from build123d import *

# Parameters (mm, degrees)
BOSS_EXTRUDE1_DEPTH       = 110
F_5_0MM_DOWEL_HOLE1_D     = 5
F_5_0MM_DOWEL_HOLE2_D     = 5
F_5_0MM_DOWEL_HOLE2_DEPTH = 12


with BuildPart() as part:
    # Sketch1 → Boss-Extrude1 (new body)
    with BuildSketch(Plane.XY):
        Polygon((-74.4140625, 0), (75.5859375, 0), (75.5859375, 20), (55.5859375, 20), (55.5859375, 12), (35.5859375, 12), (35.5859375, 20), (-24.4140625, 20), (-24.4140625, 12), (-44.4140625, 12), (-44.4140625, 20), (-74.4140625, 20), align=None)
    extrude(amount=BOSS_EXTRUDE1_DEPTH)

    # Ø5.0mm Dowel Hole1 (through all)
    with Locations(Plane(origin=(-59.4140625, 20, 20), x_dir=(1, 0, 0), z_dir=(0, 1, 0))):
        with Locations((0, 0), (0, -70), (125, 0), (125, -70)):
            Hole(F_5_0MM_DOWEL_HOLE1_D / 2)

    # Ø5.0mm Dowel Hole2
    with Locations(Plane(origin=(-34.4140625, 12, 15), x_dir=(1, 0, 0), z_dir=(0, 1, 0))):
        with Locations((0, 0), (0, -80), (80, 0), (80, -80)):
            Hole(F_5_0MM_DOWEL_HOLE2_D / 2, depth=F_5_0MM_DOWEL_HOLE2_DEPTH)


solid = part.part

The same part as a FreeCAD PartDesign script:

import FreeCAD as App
import Part
import Sketcher

V = App.Vector

doc = App.newDocument("Part")
params = doc.addObject("Spreadsheet::Sheet", "Params")
for row, (alias, value) in enumerate([
    ("sketch1_width", "150 mm"),
    ("sketch1_width2", "20 mm"),
    ("sketch1_width3", "60 mm"),
    ("sketch1_height", "8 mm"),
    ("pad1_length", "110 mm"),
    ("sketch2_diameter", "5 mm"),
    ("hole_diameter", "5 mm"),
    ("sketch3_diameter", "5 mm"),
    ("hole2_diameter", "5 mm"),
    ("hole2_depth", "12 mm"),
], start=1):
    params.set(f"A{row}", alias)
    params.set(f"B{row}", "=" + value)
    params.setAlias(f"B{row}", alias)

body = doc.addObject("PartDesign::Body", "Body")

# Sketch on XY plane
sketch1 = body.newObject("Sketcher::SketchObject", "Sketch")
sketch1.AttachmentSupport = (doc.getObject("XY_Plane"), [""])
sketch1.MapMode = "FlatFace"
sketch1.addGeometry([
    Part.LineSegment(V(-74, 0, 0), V(76, 0, 0)),  # 0
    Part.LineSegment(V(76, 0, 0), V(76, 20, 0)),  # 1
    Part.LineSegment(V(76, 20, 0), V(56, 20, 0)),  # 2
    Part.LineSegment(V(56, 20, 0), V(56, 12, 0)),  # 3
    Part.LineSegment(V(56, 12, 0), V(36, 12, 0)),  # 4
    Part.LineSegment(V(36, 12, 0), V(36, 20, 0)),  # 5
    Part.LineSegment(V(36, 20, 0), V(-24, 20, 0)),  # 6
    Part.LineSegment(V(-24, 20, 0), V(-24, 12, 0)),  # 7
    Part.LineSegment(V(-24, 12, 0), V(-44, 12, 0)),  # 8
    Part.LineSegment(V(-44, 12, 0), V(-44, 20, 0)),  # 9
    Part.LineSegment(V(-44, 20, 0), V(-74, 20, 0)),  # 10
    Part.LineSegment(V(-74, 20, 0), V(-74, 0, 0)),  # 11
], False)
sketch1.addConstraint([
    Sketcher.Constraint("Coincident", 0, 2, 1, 1),
    Sketcher.Constraint("Coincident", 1, 2, 2, 1),
    Sketcher.Constraint("Coincident", 2, 2, 3, 1),
    Sketcher.Constraint("Coincident", 3, 2, 4, 1),
    Sketcher.Constraint("Coincident", 4, 2, 5, 1),
    Sketcher.Constraint("Coincident", 5, 2, 6, 1),
    Sketcher.Constraint("Coincident", 6, 2, 7, 1),
    Sketcher.Constraint("Coincident", 7, 2, 8, 1),
    Sketcher.Constraint("Coincident", 8, 2, 9, 1),
    Sketcher.Constraint("Coincident", 9, 2, 10, 1),
    Sketcher.Constraint("Coincident", 10, 2, 11, 1),
    Sketcher.Constraint("Coincident", 11, 2, 0, 1),
    Sketcher.Constraint("Horizontal", 0),
    Sketcher.Constraint("Vertical", 1),
    Sketcher.Constraint("Horizontal", 2),
    Sketcher.Constraint("Vertical", 3),
    Sketcher.Constraint("Horizontal", 4),
    Sketcher.Constraint("Vertical", 5),
    Sketcher.Constraint("Horizontal", 6),
    Sketcher.Constraint("Vertical", 7),
    Sketcher.Constraint("Horizontal", 8),
    Sketcher.Constraint("Vertical", 9),
    Sketcher.Constraint("Horizontal", 10),
    Sketcher.Constraint("Vertical", 11),
    Sketcher.Constraint("PointOnObject", 0, 2, -1),
    Sketcher.Constraint("Horizontal", 2, 2, 5, 2),
    Sketcher.Constraint("Horizontal", 4, 2, 7, 2),
    Sketcher.Constraint("Horizontal", 6, 2, 9, 2),
    Sketcher.Constraint("Equal", 2, 4),
    Sketcher.Constraint("Equal", 4, 8),
    Sketcher.Constraint("Equal", 8, 1),
    Sketcher.Constraint("DistanceX", 0, 1, 0, 2, 150.0),
    Sketcher.Constraint("DistanceX", 2, 2, 2, 1, 20.0),
    Sketcher.Constraint("DistanceX", 6, 2, 6, 1, 60.0),
    Sketcher.Constraint("DistanceY", 3, 2, 3, 1, 8.0),
    Sketcher.Constraint("DistanceX", -1, 1, 0, 2, 75.585938),
])
sketch1.setExpression("Constraints[31]", "Params.sketch1_width")
sketch1.setExpression("Constraints[32]", "Params.sketch1_width2")
sketch1.setExpression("Constraints[33]", "Params.sketch1_width3")
sketch1.setExpression("Constraints[34]", "Params.sketch1_height")
pad1 = body.newObject("PartDesign::Pad", "Pad")
pad1.Profile = sketch1
pad1.setExpression("Length", "Params.pad1_length")

# Sketch on XZ plane
sketch2 = body.newObject("Sketcher::SketchObject", "Sketch001")
sketch2.AttachmentSupport = (doc.getObject("XZ_Plane"), [""])
sketch2.MapMode = "FlatFace"
sketch2.AttachmentOffset = App.Placement(V(0, 0, -20), App.Rotation())
sketch2.addGeometry([
    Part.Circle(V(-59.4, 20, 0), V(0, 0, 1), 2.5),
    Part.Circle(V(-59.4, 90, 0), V(0, 0, 1), 2.5),
    Part.Circle(V(65.6, 20, 0), V(0, 0, 1), 2.5),
    Part.Circle(V(65.6, 90, 0), V(0, 0, 1), 2.5),
], False)
sketch2.addConstraint([
    Sketcher.Constraint("Equal", 0, 1),
    Sketcher.Constraint("Equal", 1, 2),
    Sketcher.Constraint("Equal", 2, 3),
    Sketcher.Constraint("Horizontal", 0, 3, 2, 3),
    Sketcher.Constraint("Horizontal", 1, 3, 3, 3),
    Sketcher.Constraint("Vertical", 0, 3, 1, 3),
    Sketcher.Constraint("Vertical", 2, 3, 3, 3),
    Sketcher.Constraint("Diameter", 0, 5.0),
    Sketcher.Constraint("DistanceY", -1, 1, 0, 3, 20.0),
    Sketcher.Constraint("DistanceY", -1, 1, 1, 3, 90.0),
    Sketcher.Constraint("DistanceX", 0, 3, 2, 3, 125.0),
    Sketcher.Constraint("DistanceX", 0, 3, -1, 1, 59.414062),
])
sketch2.setExpression("Constraints[7]", "Params.sketch2_diameter")
doc.recompute()
hole = body.newObject("PartDesign::Hole", "Hole")
hole.Profile = sketch2
hole.ThreadType = "None"
hole.setExpression("Diameter", "Params.hole_diameter")
hole.DepthType = "ThroughAll"
hole.Reversed = True

# Sketch on XZ plane
sketch3 = body.newObject("Sketcher::SketchObject", "Sketch002")
sketch3.AttachmentSupport = (doc.getObject("XZ_Plane"), [""])
sketch3.MapMode = "FlatFace"
sketch3.AttachmentOffset = App.Placement(V(0, 0, -12), App.Rotation())
sketch3.addGeometry([
    Part.Circle(V(-34.4, 15, 0), V(0, 0, 1), 2.5),
    Part.Circle(V(-34.4, 95, 0), V(0, 0, 1), 2.5),
    Part.Circle(V(45.6, 15, 0), V(0, 0, 1), 2.5),
    Part.Circle(V(45.6, 95, 0), V(0, 0, 1), 2.5),
], False)
sketch3.addConstraint([
    Sketcher.Constraint("Equal", 0, 1),
    Sketcher.Constraint("Equal", 1, 2),
    Sketcher.Constraint("Equal", 2, 3),
    Sketcher.Constraint("Horizontal", 0, 3, 2, 3),
    Sketcher.Constraint("Horizontal", 1, 3, 3, 3),
    Sketcher.Constraint("Vertical", 0, 3, 1, 3),
    Sketcher.Constraint("Vertical", 2, 3, 3, 3),
    Sketcher.Constraint("Diameter", 0, 5.0),
    Sketcher.Constraint("DistanceY", -1, 1, 0, 3, 15.0),
    Sketcher.Constraint("DistanceY", -1, 1, 1, 3, 95.0),
    Sketcher.Constraint("DistanceX", 0, 3, 2, 3, 80.0),
    Sketcher.Constraint("DistanceX", 0, 3, -1, 1, 34.414062),
])
sketch3.setExpression("Constraints[7]", "Params.sketch3_diameter")
doc.recompute()
hole2 = body.newObject("PartDesign::Hole", "Hole001")
hole2.Profile = sketch3
hole2.ThreadType = "None"
hole2.setExpression("Diameter", "Params.hole2_diameter")
hole2.DepthType = "Dimension"
hole2.setExpression("Depth", "Params.hole2_depth")
hole2.DrillPoint = "Flat"
hole2.Reversed = True

doc.recompute()
